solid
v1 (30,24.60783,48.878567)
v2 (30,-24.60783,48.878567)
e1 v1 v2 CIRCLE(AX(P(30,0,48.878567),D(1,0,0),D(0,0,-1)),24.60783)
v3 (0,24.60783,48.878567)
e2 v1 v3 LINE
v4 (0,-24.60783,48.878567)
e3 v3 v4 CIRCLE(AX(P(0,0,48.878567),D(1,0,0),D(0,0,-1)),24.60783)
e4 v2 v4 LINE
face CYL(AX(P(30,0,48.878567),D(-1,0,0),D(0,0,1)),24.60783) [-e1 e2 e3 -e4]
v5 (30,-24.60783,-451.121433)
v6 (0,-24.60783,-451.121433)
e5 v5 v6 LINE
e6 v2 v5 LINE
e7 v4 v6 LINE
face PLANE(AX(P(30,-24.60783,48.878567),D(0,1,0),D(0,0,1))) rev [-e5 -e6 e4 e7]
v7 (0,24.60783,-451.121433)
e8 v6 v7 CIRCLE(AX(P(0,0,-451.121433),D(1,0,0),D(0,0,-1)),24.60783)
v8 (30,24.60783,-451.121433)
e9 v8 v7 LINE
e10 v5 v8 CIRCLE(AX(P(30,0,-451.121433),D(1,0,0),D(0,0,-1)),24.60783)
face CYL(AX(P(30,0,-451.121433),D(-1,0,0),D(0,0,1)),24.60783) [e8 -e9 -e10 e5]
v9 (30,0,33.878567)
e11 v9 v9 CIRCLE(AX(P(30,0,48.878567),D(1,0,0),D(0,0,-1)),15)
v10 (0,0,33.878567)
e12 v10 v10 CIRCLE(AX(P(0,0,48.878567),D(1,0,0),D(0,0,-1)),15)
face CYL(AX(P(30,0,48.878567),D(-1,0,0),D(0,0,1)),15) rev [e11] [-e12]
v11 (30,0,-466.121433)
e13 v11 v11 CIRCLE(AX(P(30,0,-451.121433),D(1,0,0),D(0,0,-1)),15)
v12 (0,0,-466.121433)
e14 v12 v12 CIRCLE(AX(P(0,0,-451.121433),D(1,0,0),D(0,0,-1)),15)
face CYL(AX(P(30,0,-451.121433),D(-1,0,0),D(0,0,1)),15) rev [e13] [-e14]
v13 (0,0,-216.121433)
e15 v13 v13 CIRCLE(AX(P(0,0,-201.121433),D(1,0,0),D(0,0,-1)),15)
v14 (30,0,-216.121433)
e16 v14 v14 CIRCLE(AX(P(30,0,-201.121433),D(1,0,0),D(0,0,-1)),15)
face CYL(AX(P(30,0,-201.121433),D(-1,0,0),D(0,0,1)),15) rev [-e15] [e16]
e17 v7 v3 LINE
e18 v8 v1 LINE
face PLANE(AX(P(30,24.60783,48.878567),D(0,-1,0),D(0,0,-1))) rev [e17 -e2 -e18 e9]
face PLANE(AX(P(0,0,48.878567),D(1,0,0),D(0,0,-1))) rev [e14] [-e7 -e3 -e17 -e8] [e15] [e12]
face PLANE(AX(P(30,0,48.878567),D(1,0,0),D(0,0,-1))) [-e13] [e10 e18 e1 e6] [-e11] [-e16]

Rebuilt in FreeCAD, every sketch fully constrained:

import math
import FreeCAD as App
import Part
import Sketcher
from FreeCAD import Vector

doc = App.newDocument("Part")
body = doc.addObject("PartDesign::Body", "Body")

# Sketch on YZ plane
sketch1 = doc.addObject("Sketcher::SketchObject", "Sketch")
body.addObject(sketch1)
sketch1.AttachmentSupport = (doc.YZ_Plane, [""])
sketch1.MapMode = "FlatFace"
sketch1.addGeometry(Part.LineSegment(Vector(25, -451, 0), Vector(25, 49, 0)), False)
sketch1.addGeometry(Part.ArcOfCircle(Part.Circle(Vector(0, 49, 0), Vector(0, 0, 1), 25), math.radians(0), math.radians(180)), False)
sketch1.addGeometry(Part.LineSegment(Vector(-25, 49, 0), Vector(-25, -451, 0)), False)
sketch1.addGeometry(Part.ArcOfCircle(Part.Circle(Vector(0, -451, 0), Vector(0, 0, 1), 25), math.radians(180), math.radians(360)), False)
sketch1.addGeometry(Part.Circle(Vector(0, -451, 0), Vector(0, 0, 1), 15), False)
sketch1.addGeometry(Part.Circle(Vector(0, -201, 0), Vector(0, 0, 1), 15), False)
sketch1.addGeometry(Part.Circle(Vector(0, 49, 0), Vector(0, 0, 1), 15), False)
sketch1.addConstraint(Sketcher.Constraint("Tangent", 0, 2, 1, 1))
sketch1.addConstraint(Sketcher.Constraint("Tangent", 1, 2, 2, 1))
sketch1.addConstraint(Sketcher.Constraint("Tangent", 2, 2, 3, 1))
sketch1.addConstraint(Sketcher.Constraint("Tangent", 3, 2, 0, 1))
sketch1.addConstraint(Sketcher.Constraint("Vertical", 0))
sketch1.addConstraint(Sketcher.Constraint("Vertical", 2))
sketch1.addConstraint(Sketcher.Constraint("Coincident", 4, 3, 3, 3))
sketch1.addConstraint(Sketcher.Constraint("Coincident", 6, 3, 1, 3))
sketch1.addConstraint(Sketcher.Constraint("Equal", 4, 5))
sketch1.addConstraint(Sketcher.Constraint("Equal", 5, 6))
sketch1.addConstraint(Sketcher.Constraint("PointOnObject", 1, 3, -2))
sketch1.addConstraint(Sketcher.Constraint("PointOnObject", 5, 3, -2))
sketch1.addConstraint(Sketcher.Constraint("Diameter", 4, 30.0))
sketch1.addConstraint(Sketcher.Constraint("DistanceY", 0, 1, 0, 2, 500.0))
sketch1.addConstraint(Sketcher.Constraint("DistanceY", 3, 3, 5, 3, 250.0))
sketch1.addConstraint(Sketcher.Constraint("Radius", 1, 24.60783))
sketch1.addConstraint(Sketcher.Constraint("DistanceY", -1, 1, 1, 3, 48.878567))
pad1 = doc.addObject("PartDesign::Pad", "Pad")
body.addObject(pad1)
pad1.Profile = sketch1
pad1.Length = 30

doc.recompute()
